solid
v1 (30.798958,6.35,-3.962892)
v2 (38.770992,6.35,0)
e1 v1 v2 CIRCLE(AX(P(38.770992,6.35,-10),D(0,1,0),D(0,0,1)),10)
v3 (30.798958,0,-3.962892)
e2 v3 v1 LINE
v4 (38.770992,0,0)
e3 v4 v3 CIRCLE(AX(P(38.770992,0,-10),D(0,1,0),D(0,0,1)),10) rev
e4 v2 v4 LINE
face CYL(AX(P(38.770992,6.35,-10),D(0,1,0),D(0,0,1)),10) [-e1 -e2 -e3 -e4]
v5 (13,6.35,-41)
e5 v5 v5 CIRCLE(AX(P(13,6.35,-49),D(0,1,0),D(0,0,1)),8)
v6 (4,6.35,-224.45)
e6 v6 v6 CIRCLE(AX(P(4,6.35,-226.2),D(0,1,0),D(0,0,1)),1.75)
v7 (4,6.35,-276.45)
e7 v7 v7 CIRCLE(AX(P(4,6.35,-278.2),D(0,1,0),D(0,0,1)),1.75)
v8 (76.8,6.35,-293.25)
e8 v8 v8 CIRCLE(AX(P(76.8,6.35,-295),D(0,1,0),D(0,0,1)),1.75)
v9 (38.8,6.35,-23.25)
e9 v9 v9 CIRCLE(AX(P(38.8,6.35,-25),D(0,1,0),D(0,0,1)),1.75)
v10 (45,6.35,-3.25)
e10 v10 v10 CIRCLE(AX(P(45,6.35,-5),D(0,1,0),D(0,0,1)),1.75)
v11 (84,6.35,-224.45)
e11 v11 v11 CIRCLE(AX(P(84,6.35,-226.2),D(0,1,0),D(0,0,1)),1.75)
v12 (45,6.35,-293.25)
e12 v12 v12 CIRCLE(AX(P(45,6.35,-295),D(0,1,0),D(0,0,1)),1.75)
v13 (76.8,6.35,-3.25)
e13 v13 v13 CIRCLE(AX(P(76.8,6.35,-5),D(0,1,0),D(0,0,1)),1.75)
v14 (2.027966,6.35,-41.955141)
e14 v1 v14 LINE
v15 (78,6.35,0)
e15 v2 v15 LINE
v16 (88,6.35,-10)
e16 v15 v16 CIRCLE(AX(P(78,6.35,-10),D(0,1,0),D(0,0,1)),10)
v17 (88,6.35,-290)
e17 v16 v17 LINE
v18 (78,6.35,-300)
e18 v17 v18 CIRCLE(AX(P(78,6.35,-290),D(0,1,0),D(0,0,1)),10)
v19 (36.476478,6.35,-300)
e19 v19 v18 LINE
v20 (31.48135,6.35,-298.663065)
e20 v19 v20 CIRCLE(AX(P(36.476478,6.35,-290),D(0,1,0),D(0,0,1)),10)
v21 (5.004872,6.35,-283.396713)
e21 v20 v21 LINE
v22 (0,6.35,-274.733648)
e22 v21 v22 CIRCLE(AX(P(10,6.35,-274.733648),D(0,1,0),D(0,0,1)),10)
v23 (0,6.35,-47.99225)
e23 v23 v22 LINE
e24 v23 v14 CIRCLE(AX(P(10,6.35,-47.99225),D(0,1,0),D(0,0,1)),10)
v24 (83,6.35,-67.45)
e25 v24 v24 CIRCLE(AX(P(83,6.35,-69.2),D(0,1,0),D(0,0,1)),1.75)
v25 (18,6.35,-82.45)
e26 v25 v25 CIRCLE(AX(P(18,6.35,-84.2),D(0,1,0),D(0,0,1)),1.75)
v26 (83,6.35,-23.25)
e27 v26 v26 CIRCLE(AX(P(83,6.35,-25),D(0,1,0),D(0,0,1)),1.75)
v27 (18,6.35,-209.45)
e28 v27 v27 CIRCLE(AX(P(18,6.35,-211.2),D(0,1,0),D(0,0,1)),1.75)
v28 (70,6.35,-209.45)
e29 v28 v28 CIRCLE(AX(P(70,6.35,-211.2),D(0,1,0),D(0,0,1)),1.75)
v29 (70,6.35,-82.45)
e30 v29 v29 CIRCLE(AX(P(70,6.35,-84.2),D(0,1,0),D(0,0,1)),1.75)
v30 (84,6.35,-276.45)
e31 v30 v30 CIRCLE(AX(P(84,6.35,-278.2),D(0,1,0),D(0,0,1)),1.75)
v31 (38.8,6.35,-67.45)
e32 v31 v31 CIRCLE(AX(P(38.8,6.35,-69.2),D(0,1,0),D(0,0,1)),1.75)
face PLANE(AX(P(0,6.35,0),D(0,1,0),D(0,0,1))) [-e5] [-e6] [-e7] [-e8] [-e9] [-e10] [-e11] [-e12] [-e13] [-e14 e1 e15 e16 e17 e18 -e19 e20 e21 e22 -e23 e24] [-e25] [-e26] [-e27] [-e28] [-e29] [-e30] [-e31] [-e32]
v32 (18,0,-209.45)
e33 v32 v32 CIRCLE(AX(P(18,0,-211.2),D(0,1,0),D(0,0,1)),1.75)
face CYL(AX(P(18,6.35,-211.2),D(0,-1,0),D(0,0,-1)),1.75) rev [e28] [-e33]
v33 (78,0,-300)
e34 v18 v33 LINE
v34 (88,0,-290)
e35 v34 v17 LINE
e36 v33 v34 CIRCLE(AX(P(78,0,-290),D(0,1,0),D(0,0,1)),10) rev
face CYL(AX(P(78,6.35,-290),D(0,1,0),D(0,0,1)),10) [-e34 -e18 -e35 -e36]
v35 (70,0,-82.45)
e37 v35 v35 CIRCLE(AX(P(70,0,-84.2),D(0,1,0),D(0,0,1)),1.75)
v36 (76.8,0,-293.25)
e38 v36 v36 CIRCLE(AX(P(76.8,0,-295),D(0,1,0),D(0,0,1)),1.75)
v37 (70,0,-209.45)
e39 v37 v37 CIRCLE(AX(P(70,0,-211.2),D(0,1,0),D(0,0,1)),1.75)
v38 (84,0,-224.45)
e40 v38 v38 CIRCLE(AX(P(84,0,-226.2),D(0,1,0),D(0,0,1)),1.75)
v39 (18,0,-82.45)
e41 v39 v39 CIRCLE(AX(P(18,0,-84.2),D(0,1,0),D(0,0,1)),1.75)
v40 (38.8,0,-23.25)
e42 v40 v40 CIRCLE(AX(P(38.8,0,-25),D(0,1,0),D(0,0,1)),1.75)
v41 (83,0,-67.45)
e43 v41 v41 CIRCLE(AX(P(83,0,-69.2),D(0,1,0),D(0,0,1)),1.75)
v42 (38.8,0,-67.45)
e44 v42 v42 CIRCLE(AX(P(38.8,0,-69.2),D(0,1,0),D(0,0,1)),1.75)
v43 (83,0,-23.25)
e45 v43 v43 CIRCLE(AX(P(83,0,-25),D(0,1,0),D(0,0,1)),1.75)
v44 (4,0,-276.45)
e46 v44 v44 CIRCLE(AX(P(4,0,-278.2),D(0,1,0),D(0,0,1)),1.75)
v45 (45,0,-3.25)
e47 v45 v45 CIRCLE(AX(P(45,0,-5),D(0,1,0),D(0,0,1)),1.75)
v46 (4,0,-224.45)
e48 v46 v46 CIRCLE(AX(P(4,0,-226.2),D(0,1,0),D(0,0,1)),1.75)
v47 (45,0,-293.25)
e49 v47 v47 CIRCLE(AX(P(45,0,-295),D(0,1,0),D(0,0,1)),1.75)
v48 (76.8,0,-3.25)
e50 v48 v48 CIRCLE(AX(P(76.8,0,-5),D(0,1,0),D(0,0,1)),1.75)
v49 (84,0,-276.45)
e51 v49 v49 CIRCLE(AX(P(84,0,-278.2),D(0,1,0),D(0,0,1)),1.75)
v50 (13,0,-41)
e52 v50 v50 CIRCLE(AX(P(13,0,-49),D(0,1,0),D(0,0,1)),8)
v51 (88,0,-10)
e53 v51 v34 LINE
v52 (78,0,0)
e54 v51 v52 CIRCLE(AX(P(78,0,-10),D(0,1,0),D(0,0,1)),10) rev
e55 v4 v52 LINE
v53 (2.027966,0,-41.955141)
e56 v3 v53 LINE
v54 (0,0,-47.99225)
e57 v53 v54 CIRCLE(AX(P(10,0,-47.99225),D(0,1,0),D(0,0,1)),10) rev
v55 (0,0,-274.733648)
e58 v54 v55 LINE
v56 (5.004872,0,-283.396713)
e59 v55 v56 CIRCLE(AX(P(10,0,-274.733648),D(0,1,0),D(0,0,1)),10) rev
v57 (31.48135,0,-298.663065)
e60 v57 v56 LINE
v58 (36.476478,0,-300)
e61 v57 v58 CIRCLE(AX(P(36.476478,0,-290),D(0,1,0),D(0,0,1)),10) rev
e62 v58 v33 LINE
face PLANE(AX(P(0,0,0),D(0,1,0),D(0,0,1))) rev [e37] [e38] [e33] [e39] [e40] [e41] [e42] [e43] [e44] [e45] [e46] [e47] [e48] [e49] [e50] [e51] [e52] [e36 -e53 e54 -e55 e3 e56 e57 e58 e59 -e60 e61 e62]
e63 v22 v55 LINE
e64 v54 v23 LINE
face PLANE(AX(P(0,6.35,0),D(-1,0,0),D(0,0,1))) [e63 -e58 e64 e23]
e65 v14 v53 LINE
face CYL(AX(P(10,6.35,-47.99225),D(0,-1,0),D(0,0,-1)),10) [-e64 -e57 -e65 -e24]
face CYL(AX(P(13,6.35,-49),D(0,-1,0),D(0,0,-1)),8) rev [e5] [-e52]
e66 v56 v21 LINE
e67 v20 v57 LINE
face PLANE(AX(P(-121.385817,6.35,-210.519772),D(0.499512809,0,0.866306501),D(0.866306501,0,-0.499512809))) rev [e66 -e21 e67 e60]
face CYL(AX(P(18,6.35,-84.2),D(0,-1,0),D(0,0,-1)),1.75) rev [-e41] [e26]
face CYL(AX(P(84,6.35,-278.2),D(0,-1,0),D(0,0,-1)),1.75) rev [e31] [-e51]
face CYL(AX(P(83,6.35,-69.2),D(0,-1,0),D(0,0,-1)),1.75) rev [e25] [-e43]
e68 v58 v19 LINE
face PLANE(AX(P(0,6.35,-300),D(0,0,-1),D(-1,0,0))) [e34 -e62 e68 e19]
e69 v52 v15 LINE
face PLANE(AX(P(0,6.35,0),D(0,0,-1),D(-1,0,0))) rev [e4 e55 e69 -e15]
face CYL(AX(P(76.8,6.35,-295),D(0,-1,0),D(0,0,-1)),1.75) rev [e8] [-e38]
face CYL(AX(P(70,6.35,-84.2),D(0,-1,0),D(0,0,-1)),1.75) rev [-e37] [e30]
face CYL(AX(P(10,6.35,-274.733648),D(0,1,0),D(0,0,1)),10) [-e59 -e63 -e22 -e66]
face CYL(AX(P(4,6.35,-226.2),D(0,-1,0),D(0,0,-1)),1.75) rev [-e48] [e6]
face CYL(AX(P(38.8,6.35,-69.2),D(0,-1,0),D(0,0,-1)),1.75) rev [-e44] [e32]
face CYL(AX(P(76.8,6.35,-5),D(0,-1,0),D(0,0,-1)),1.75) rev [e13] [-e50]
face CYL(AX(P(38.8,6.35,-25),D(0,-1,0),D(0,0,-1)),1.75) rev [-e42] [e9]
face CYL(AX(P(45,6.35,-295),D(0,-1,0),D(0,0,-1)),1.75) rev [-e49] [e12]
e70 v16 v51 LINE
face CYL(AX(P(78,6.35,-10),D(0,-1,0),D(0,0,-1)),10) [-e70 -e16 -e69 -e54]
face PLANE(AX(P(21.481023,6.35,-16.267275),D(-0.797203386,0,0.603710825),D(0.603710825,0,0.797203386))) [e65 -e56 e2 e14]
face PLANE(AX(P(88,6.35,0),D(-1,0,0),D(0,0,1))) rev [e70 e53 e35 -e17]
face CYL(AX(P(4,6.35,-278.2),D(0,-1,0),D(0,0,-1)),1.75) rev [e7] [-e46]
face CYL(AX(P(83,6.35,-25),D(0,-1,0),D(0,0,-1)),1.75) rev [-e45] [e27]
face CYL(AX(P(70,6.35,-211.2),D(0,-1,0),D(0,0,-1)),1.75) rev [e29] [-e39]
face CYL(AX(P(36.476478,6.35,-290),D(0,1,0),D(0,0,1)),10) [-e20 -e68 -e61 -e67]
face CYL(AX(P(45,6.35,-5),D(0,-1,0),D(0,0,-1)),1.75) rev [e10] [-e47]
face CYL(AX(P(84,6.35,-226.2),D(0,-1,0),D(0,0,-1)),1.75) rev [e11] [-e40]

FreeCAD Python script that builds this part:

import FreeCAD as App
import Part
import Sketcher
from FreeCAD import Vector
Q = App.Units.Quantity


def edges_at(feature, points):
    """Names of the edges that pass closest to the given points."""
    edges = feature.Shape.Edges
    near = lambda p: min(range(len(edges)), key=lambda i: edges[i].distToShape(Part.Vertex(*p))[0])
    return sorted({f"Edge{near(p) + 1}" for p in points})

doc = App.newDocument("Part")
body = doc.addObject("PartDesign::Body", "Body")

sketch1 = body.newObject("Sketcher::SketchObject", "Sketch")
sketch1.AttachmentSupport = (doc.getObject("XZ_Plane"), [""])
sketch1.MapMode = "FlatFace"
sketch1.addGeometry([
    Part.LineSegment(Vector(0, -44.6, 0), Vector(33.8, 0, 0)),
    Part.LineSegment(Vector(33.8, 0, 0), Vector(88, 0, 0)),
    Part.LineSegment(Vector(88, 0, 0), Vector(88, -300, 0)),
    Part.LineSegment(Vector(88, -300, 0), Vector(33.8, -300, 0)),
    Part.LineSegment(Vector(33.8, -300, 0), Vector(0, -280.5, 0)),
    Part.LineSegment(Vector(0, -280.5, 0), Vector(0, -44.6, 0)),
    Part.Circle(Vector(13, -49, 0), Vector(0, 0, 1), 8),
    Part.Circle(Vector(38.8, -25, 0), Vector(0, 0, 1), 1.8),
    Part.Circle(Vector(38.8, -69.2, 0), Vector(0, 0, 1), 1.8),
    Part.Circle(Vector(18, -84.2, 0), Vector(0, 0, 1), 1.8),
    Part.Circle(Vector(45, -5, 0), Vector(0, 0, 1), 1.8),
    Part.Circle(Vector(76.8, -5, 0), Vector(0, 0, 1), 1.8),
    Part.Circle(Vector(83, -25, 0), Vector(0, 0, 1), 1.8),
    Part.Circle(Vector(83, -69.2, 0), Vector(0, 0, 1), 1.8),
    Part.Circle(Vector(70, -84.2, 0), Vector(0, 0, 1), 1.8),
    Part.Circle(Vector(18, -211.2, 0), Vector(0, 0, 1), 1.8),
    Part.Circle(Vector(4, -226.2, 0), Vector(0, 0, 1), 1.8),
    Part.Circle(Vector(4, -278.2, 0), Vector(0, 0, 1), 1.8),
    Part.Circle(Vector(70, -211.2, 0), Vector(0, 0, 1), 1.8),
    Part.Circle(Vector(45, -295, 0), Vector(0, 0, 1), 1.8),
    Part.Circle(Vector(84, -226.2, 0), Vector(0, 0, 1), 1.8),
    Part.Circle(Vector(84, -278.2, 0), Vector(0, 0, 1), 1.8),
    Part.Circle(Vector(76.8, -295, 0), Vector(0, 0, 1), 1.8),
], False)
sketch1.addConstraint([
    Sketcher.Constraint("Coincident", 0, 2, 1, 1),
    Sketcher.Constraint("Coincident", 1, 2, 2, 1),
    Sketcher.Constraint("Coincident", 2, 2, 3, 1),
    Sketcher.Constraint("Coincident", 3, 2, 4, 1),
    Sketcher.Constraint("Coincident", 4, 2, 5, 1),
    Sketcher.Constraint("Coincident", 5, 2, 0, 1),
    Sketcher.Constraint("Horizontal", 1),
    Sketcher.Constraint("Vertical", 2),
    Sketcher.Constraint("Horizontal", 3),
    Sketcher.Constraint("Vertical", 5),
    Sketcher.Constraint("Equal", 7, 8),
    Sketcher.Constraint("Equal", 8, 9),
    Sketcher.Constraint("Equal", 9, 10),
    Sketcher.Constraint("Equal", 10, 11),
    Sketcher.Constraint("Equal", 11, 12),
    Sketcher.Constraint("Equal", 12, 13),
    Sketcher.Constraint("Equal", 13, 14),
    Sketcher.Constraint("Equal", 14, 15),
    Sketcher.Constraint("Equal", 15, 16),
    Sketcher.Constraint("Equal", 16, 17),
    Sketcher.Constraint("Equal", 17, 18),
    Sketcher.Constraint("Equal", 18, 19),
    Sketcher.Constraint("Equal", 19, 20),
    Sketcher.Constraint("Equal", 20, 21),
    Sketcher.Constraint("Equal", 21, 22),
    Sketcher.Constraint("PointOnObject", 0, 2, -1),
    Sketcher.Constraint("PointOnObject", 4, 2, -2),
    Sketcher.Constraint("Horizontal", 10, 3, 11, 3),
    Sketcher.Constraint("Horizontal", 7, 3, 12, 3),
    Sketcher.Constraint("Horizontal", 8, 3, 13, 3),
    Sketcher.Constraint("Horizontal", 9, 3, 14, 3),
    Sketcher.Constraint("Horizontal", 15, 3, 18, 3),
    Sketcher.Constraint("Horizontal", 16, 3, 20, 3),
    Sketcher.Constraint("Horizontal", 17, 3, 21, 3),
    Sketcher.Constraint("Horizontal", 19, 3, 22, 3),
    Sketcher.Constraint("Vertical", 7, 3, 8, 3),
    Sketcher.Constraint("Vertical", 12, 3, 13, 3),
    Sketcher.Constraint("Vertical", 9, 3, 15, 3),
    Sketcher.Constraint("Vertical", 16, 3, 17, 3),
    Sketcher.Constraint("Vertical", 14, 3, 18, 3),
    Sketcher.Constraint("Vertical", 10, 3, 19, 3),
    Sketcher.Constraint("Vertical", 20, 3, 21, 3),
    Sketcher.Constraint("Vertical", 11, 3, 22, 3),
    Sketcher.Constraint("Vertical", 0, 2, 3, 2),
    Sketcher.Constraint("Diameter", 6, Q("16 mm")),
    Sketcher.Constraint("Diameter", 7, Q("3.5 mm")),
    Sketcher.Constraint("DistanceY", 2, 2, 2, 1, Q("300 mm")),
    Sketcher.Constraint("DistanceX", 1, 1, 1, 2, Q("54.2 mm")),
    Sketcher.Constraint("DistanceX", -1, 1, 6, 3, Q("13 mm")),
    Sketcher.Constraint("DistanceY", 6, 3, -1, 1, Q("49 mm")),
    Sketcher.Constraint("DistanceY", 7, 3, -1, 1, Q("25 mm")),
    Sketcher.Constraint("DistanceX", -1, 1, 9, 3, Q("18 mm")),
    Sketcher.Constraint("DistanceX", -1, 1, 10, 3, Q("45 mm")),
    Sketcher.Constraint("DistanceY", 10, 3, -1, 1, Q("5 mm")),
    Sketcher.Constraint("DistanceX", -1, 1, 12, 3, Q("83 mm")),
    Sketcher.Constraint("DistanceX", -1, 1, 14, 3, Q("70 mm")),
    Sketcher.Constraint("DistanceX", -1, 1, 16, 3, Q("4 mm")),
    Sketcher.Constraint("DistanceY", 19, 3, -1, 1, Q("295 mm")),
    Sketcher.Constraint("DistanceX", -1, 1, 20, 3, Q("84 mm")),
    Sketcher.Constraint("DistanceX", -1, 1, 1, 2, Q("88 mm")),
    Sketcher.Constraint("DistanceY", 9, 3, 8, 3, Q("15 mm")),
    Sketcher.Constraint("DistanceX", 7, 3, 11, 3, Q("38 mm")),
    Sketcher.Constraint("DistanceY", 15, 3, 9, 3, Q("127 mm")),
    Sketcher.Constraint("DistanceY", 16, 3, 15, 3, Q("15 mm")),
    Sketcher.Constraint("DistanceY", 17, 3, 16, 3, Q("52 mm")),
    Sketcher.Constraint("DistanceX", 0, 2, 7, 3, Q("5 mm")),
    Sketcher.Constraint("DistanceY", 8, 3, -1, 1, Q("69.2 mm")),
    Sketcher.Constraint("DistanceY", 5, 1, 5, 2, Q("235.87782 mm")),
    Sketcher.Constraint("DistanceY", 4, 2, -1, 1, Q("280.510901 mm")),
])
pad1 = body.newObject("PartDesign::Pad", "Pad")
pad1.Profile = sketch1
pad1.Length = 6.35
pad1.Reversed = True
doc.recompute()

fillet = body.newObject("PartDesign::Fillet", "Fillet")
fillet.Base = (pad1, edges_at(pad1, [
    (88, 3.175, -300),
    (88, 3.175, 0),
    (33.8, 3.175, 0),
    (0, 3.175, -44.633),
    (0, 3.175, -280.511),
    (33.8, 3.175, -300),
]))
fillet.Radius = 10

doc.recompute()
